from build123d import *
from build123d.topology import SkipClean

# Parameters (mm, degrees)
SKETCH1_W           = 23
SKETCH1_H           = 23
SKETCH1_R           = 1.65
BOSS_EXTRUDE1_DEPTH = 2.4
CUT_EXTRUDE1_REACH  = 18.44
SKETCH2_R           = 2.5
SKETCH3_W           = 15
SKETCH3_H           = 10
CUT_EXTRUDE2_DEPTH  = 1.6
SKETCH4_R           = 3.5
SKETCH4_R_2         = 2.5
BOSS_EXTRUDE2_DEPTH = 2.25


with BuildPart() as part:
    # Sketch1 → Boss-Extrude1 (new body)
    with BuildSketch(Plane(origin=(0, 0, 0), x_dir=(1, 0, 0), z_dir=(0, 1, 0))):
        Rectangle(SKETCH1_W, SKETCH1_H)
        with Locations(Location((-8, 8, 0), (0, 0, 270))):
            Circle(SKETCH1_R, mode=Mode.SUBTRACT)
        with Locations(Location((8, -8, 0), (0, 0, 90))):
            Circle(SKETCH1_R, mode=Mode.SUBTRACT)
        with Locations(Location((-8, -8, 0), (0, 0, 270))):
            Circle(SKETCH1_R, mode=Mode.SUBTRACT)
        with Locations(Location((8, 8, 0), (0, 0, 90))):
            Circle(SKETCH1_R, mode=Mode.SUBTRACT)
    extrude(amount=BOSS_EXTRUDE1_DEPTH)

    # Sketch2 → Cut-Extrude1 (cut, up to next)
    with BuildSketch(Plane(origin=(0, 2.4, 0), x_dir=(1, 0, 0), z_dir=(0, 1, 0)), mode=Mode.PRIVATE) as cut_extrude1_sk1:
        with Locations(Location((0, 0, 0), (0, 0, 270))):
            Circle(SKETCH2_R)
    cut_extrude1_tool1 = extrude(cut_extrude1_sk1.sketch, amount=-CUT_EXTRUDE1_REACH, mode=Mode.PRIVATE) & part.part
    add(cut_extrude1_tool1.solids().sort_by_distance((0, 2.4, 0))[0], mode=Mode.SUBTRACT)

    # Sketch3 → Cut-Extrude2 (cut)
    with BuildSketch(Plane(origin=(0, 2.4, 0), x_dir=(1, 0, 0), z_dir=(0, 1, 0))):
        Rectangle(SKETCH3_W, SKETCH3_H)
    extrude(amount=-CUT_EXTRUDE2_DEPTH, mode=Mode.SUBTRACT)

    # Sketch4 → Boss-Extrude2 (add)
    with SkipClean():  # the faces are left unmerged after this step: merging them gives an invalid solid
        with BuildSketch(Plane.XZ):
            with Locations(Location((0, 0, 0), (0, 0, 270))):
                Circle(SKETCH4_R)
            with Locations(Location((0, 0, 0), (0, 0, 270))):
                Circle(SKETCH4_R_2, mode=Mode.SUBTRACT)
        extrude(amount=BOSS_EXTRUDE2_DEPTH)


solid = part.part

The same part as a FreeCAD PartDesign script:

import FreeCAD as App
import Part
import Sketcher

doc = App.newDocument("Part")
body = doc.addObject("PartDesign::Body", "Body")

sketch1 = body.newObject("Sketcher::SketchObject", "Sketch")
sketch1.AttachmentSupport = (doc.getObject("XZ_Plane"), [""])
sketch1.MapMode = "FlatFace"
sketch1.addGeometry([
    Part.LineSegment(App.Vector(-11.5, -11.5, 0), App.Vector(-11.5, 11.5, 0)),
    Part.LineSegment(App.Vector(-11.5, 11.5, 0), App.Vector(11.5, 11.5, 0)),
    Part.LineSegment(App.Vector(11.5, 11.5, 0), App.Vector(11.5, -11.5, 0)),
    Part.LineSegment(App.Vector(11.5, -11.5, 0), App.Vector(-11.5, -11.5, 0)),
    Part.Circle(App.Vector(-8, 8, 0), App.Vector(0, 0, 1), 1.6),
    Part.Circle(App.Vector(8, 8, 0), App.Vector(0, 0, 1), 1.6),
    Part.Circle(App.Vector(-8, -8, 0), App.Vector(0, 0, 1), 1.6),
    Part.Circle(App.Vector(8, -8, 0), App.Vector(0, 0, 1), 1.6),
], False)
sketch1.addConstraint([
    Sketcher.Constraint("Coincident", 0, 2, 1, 1),
    Sketcher.Constraint("Coincident", 1, 2, 2, 1),
    Sketcher.Constraint("Coincident", 2, 2, 3, 1),
    Sketcher.Constraint("Coincident", 3, 2, 0, 1),
    Sketcher.Constraint("Vertical", 0),
    Sketcher.Constraint("Horizontal", 1),
    Sketcher.Constraint("Vertical", 2),
    Sketcher.Constraint("Horizontal", 3),
    Sketcher.Constraint("Equal", 4, 5),
    Sketcher.Constraint("Equal", 5, 6),
    Sketcher.Constraint("Equal", 6, 7),
    Sketcher.Constraint("Symmetric", 5, 3, 6, 3, -1, 1),
    Sketcher.Constraint("Symmetric", 4, 3, 7, 3, -1, 1),
    Sketcher.Constraint("Symmetric", 0, 2, 2, 2, -1, 1),
    Sketcher.Constraint("Symmetric", 4, 3, 5, 3, -2),
    Sketcher.Constraint("Equal", 3, 0),
    Sketcher.Constraint("Diameter", 4, 3.3),
    Sketcher.Constraint("DistanceX", 1, 1, 1, 2, 23.0),
    Sketcher.Constraint("DistanceX", 4, 3, -1, 1, 8.0),
    Sketcher.Constraint("DistanceY", -1, 1, 4, 3, 8.0),
])
pad1 = body.newObject("PartDesign::Pad", "Pad")
pad1.Profile = sketch1
pad1.Length = 2.4
pad1.Reversed = True

sketch2 = body.newObject("Sketcher::SketchObject", "Sketch001")
sketch2.AttachmentSupport = (doc.getObject("XZ_Plane"), [""])
sketch2.MapMode = "FlatFace"
sketch2.AttachmentOffset = App.Placement(App.Vector(0, 0, -2.4), App.Rotation())
sketch2.addGeometry(Part.Circle(App.Vector(0, 0, 0), App.Vector(0, 0, 1), 2.5), False)
sketch2.addConstraint([
    Sketcher.Constraint("Coincident", 0, 3, -1, 1),
    Sketcher.Constraint("Diameter", 0, 5.0),
])
pocket1 = body.newObject("PartDesign::Pocket", "Pocket")
pocket1.Profile = sketch2
pocket1.Type = "UpToFirst"
pocket1.Reversed = True

sketch3 = body.newObject("Sketcher::SketchObject", "Sketch002")
sketch3.AttachmentSupport = (doc.getObject("XZ_Plane"), [""])
sketch3.MapMode = "FlatFace"
sketch3.AttachmentOffset = App.Placement(App.Vector(0, 0, -2.4), App.Rotation())
sketch3.addGeometry([
    Part.LineSegment(App.Vector(-8, -5, 0), App.Vector(-8, 5, 0)),
    Part.LineSegment(App.Vector(-8, 5, 0), App.Vector(8, 5, 0)),
    Part.LineSegment(App.Vector(8, 5, 0), App.Vector(8, -5, 0)),
    Part.LineSegment(App.Vector(8, -5, 0), App.Vector(-8, -5, 0)),
], False)
sketch3.addConstraint([
    Sketcher.Constraint("Coincident", 0, 2, 1, 1),
    Sketcher.Constraint("Coincident", 1, 2, 2, 1),
    Sketcher.Constraint("Coincident", 2, 2, 3, 1),
    Sketcher.Constraint("Coincident", 3, 2, 0, 1),
    Sketcher.Constraint("Vertical", 0),
    Sketcher.Constraint("Horizontal", 1),
    Sketcher.Constraint("Vertical", 2),
    Sketcher.Constraint("Horizontal", 3),
    Sketcher.Constraint("Symmetric", 0, 2, 2, 2, -1, 1),
    Sketcher.Constraint("DistanceX", 1, 1, 1, 2, 15.0),
    Sketcher.Constraint("DistanceY", 0, 1, 0, 2, 10.0),
])
pocket2 = body.newObject("PartDesign::Pocket", "Pocket001")
pocket2.Profile = sketch3
pocket2.Length = 1.6
pocket2.Reversed = True

sketch4 = body.newObject("Sketcher::SketchObject", "Sketch003")
sketch4.AttachmentSupport = (doc.getObject("XZ_Plane"), [""])
sketch4.MapMode = "FlatFace"
sketch4.addGeometry([
    Part.Circle(App.Vector(0, 0, 0), App.Vector(0, 0, 1), 3.5),
    Part.Circle(App.Vector(0, 0, 0), App.Vector(0, 0, 1), 2.5),
], False)
sketch4.addConstraint([
    Sketcher.Constraint("Coincident", 0, 3, -1, 1),
    Sketcher.Constraint("Coincident", 1, 3, -1, 1),
    Sketcher.Constraint("Diameter", 0, 7.0),
    Sketcher.Constraint("Diameter", 1, 5.0),
])
pad2 = body.newObject("PartDesign::Pad", "Pad001")
pad2.Profile = sketch4
pad2.Length = 2.25

doc.recompute()
